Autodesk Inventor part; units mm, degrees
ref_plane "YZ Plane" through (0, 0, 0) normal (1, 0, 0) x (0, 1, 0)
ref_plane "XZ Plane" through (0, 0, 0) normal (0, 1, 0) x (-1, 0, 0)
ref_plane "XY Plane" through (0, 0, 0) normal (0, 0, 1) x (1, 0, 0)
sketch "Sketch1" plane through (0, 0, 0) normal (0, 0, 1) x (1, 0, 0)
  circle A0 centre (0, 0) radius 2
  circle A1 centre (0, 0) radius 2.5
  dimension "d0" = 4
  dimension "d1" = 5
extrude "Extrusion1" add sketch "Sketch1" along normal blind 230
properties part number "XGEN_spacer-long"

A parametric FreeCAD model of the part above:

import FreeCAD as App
import Part
import Sketcher

V = App.Vector
Q = App.Units.Quantity

doc = App.newDocument("Part")
params = doc.addObject("Spreadsheet::Sheet", "Params")
for row, (alias, value) in enumerate([
    ("sketch1_diameter", "5 mm"),
    ("sketch1_diameter2", "4 mm"),
    ("pad1_length", "230 mm"),
], start=1):
    params.set(f"A{row}", alias)
    params.set(f"B{row}", "=" + value)
    params.setAlias(f"B{row}", alias)

body = doc.addObject("PartDesign::Body", "Body")

sketch1 = doc.addObject("Sketcher::SketchObject", "Sketch")
body.addObject(sketch1)
sketch1.AttachmentSupport = (doc.XY_Plane, [""])
sketch1.MapMode = "FlatFace"
sketch1.addGeometry(Part.Circle(V(0, 0, 0), V(0, 0, 1), 2.5), False)
sketch1.addGeometry(Part.Circle(V(0, 0, 0), V(0, 0, 1), 2), False)
sketch1.addConstraint(Sketcher.Constraint("Coincident", 0, 3, -1, 1))
sketch1.addConstraint(Sketcher.Constraint("Coincident", 1, 3, -1, 1))
sketch1.addConstraint(Sketcher.Constraint("Diameter", 0, Q("5 mm")))
sketch1.addConstraint(Sketcher.Constraint("Diameter", 1, Q("4 mm")))
sketch1.setExpression("Constraints[2]", "Params.sketch1_diameter")
sketch1.setExpression("Constraints[3]", "Params.sketch1_diameter2")
pad1 = doc.addObject("PartDesign::Pad", "Pad")
body.addObject(pad1)
pad1.Profile = sketch1
pad1.setExpression("Length", "Params.pad1_length")

doc.recompute()
